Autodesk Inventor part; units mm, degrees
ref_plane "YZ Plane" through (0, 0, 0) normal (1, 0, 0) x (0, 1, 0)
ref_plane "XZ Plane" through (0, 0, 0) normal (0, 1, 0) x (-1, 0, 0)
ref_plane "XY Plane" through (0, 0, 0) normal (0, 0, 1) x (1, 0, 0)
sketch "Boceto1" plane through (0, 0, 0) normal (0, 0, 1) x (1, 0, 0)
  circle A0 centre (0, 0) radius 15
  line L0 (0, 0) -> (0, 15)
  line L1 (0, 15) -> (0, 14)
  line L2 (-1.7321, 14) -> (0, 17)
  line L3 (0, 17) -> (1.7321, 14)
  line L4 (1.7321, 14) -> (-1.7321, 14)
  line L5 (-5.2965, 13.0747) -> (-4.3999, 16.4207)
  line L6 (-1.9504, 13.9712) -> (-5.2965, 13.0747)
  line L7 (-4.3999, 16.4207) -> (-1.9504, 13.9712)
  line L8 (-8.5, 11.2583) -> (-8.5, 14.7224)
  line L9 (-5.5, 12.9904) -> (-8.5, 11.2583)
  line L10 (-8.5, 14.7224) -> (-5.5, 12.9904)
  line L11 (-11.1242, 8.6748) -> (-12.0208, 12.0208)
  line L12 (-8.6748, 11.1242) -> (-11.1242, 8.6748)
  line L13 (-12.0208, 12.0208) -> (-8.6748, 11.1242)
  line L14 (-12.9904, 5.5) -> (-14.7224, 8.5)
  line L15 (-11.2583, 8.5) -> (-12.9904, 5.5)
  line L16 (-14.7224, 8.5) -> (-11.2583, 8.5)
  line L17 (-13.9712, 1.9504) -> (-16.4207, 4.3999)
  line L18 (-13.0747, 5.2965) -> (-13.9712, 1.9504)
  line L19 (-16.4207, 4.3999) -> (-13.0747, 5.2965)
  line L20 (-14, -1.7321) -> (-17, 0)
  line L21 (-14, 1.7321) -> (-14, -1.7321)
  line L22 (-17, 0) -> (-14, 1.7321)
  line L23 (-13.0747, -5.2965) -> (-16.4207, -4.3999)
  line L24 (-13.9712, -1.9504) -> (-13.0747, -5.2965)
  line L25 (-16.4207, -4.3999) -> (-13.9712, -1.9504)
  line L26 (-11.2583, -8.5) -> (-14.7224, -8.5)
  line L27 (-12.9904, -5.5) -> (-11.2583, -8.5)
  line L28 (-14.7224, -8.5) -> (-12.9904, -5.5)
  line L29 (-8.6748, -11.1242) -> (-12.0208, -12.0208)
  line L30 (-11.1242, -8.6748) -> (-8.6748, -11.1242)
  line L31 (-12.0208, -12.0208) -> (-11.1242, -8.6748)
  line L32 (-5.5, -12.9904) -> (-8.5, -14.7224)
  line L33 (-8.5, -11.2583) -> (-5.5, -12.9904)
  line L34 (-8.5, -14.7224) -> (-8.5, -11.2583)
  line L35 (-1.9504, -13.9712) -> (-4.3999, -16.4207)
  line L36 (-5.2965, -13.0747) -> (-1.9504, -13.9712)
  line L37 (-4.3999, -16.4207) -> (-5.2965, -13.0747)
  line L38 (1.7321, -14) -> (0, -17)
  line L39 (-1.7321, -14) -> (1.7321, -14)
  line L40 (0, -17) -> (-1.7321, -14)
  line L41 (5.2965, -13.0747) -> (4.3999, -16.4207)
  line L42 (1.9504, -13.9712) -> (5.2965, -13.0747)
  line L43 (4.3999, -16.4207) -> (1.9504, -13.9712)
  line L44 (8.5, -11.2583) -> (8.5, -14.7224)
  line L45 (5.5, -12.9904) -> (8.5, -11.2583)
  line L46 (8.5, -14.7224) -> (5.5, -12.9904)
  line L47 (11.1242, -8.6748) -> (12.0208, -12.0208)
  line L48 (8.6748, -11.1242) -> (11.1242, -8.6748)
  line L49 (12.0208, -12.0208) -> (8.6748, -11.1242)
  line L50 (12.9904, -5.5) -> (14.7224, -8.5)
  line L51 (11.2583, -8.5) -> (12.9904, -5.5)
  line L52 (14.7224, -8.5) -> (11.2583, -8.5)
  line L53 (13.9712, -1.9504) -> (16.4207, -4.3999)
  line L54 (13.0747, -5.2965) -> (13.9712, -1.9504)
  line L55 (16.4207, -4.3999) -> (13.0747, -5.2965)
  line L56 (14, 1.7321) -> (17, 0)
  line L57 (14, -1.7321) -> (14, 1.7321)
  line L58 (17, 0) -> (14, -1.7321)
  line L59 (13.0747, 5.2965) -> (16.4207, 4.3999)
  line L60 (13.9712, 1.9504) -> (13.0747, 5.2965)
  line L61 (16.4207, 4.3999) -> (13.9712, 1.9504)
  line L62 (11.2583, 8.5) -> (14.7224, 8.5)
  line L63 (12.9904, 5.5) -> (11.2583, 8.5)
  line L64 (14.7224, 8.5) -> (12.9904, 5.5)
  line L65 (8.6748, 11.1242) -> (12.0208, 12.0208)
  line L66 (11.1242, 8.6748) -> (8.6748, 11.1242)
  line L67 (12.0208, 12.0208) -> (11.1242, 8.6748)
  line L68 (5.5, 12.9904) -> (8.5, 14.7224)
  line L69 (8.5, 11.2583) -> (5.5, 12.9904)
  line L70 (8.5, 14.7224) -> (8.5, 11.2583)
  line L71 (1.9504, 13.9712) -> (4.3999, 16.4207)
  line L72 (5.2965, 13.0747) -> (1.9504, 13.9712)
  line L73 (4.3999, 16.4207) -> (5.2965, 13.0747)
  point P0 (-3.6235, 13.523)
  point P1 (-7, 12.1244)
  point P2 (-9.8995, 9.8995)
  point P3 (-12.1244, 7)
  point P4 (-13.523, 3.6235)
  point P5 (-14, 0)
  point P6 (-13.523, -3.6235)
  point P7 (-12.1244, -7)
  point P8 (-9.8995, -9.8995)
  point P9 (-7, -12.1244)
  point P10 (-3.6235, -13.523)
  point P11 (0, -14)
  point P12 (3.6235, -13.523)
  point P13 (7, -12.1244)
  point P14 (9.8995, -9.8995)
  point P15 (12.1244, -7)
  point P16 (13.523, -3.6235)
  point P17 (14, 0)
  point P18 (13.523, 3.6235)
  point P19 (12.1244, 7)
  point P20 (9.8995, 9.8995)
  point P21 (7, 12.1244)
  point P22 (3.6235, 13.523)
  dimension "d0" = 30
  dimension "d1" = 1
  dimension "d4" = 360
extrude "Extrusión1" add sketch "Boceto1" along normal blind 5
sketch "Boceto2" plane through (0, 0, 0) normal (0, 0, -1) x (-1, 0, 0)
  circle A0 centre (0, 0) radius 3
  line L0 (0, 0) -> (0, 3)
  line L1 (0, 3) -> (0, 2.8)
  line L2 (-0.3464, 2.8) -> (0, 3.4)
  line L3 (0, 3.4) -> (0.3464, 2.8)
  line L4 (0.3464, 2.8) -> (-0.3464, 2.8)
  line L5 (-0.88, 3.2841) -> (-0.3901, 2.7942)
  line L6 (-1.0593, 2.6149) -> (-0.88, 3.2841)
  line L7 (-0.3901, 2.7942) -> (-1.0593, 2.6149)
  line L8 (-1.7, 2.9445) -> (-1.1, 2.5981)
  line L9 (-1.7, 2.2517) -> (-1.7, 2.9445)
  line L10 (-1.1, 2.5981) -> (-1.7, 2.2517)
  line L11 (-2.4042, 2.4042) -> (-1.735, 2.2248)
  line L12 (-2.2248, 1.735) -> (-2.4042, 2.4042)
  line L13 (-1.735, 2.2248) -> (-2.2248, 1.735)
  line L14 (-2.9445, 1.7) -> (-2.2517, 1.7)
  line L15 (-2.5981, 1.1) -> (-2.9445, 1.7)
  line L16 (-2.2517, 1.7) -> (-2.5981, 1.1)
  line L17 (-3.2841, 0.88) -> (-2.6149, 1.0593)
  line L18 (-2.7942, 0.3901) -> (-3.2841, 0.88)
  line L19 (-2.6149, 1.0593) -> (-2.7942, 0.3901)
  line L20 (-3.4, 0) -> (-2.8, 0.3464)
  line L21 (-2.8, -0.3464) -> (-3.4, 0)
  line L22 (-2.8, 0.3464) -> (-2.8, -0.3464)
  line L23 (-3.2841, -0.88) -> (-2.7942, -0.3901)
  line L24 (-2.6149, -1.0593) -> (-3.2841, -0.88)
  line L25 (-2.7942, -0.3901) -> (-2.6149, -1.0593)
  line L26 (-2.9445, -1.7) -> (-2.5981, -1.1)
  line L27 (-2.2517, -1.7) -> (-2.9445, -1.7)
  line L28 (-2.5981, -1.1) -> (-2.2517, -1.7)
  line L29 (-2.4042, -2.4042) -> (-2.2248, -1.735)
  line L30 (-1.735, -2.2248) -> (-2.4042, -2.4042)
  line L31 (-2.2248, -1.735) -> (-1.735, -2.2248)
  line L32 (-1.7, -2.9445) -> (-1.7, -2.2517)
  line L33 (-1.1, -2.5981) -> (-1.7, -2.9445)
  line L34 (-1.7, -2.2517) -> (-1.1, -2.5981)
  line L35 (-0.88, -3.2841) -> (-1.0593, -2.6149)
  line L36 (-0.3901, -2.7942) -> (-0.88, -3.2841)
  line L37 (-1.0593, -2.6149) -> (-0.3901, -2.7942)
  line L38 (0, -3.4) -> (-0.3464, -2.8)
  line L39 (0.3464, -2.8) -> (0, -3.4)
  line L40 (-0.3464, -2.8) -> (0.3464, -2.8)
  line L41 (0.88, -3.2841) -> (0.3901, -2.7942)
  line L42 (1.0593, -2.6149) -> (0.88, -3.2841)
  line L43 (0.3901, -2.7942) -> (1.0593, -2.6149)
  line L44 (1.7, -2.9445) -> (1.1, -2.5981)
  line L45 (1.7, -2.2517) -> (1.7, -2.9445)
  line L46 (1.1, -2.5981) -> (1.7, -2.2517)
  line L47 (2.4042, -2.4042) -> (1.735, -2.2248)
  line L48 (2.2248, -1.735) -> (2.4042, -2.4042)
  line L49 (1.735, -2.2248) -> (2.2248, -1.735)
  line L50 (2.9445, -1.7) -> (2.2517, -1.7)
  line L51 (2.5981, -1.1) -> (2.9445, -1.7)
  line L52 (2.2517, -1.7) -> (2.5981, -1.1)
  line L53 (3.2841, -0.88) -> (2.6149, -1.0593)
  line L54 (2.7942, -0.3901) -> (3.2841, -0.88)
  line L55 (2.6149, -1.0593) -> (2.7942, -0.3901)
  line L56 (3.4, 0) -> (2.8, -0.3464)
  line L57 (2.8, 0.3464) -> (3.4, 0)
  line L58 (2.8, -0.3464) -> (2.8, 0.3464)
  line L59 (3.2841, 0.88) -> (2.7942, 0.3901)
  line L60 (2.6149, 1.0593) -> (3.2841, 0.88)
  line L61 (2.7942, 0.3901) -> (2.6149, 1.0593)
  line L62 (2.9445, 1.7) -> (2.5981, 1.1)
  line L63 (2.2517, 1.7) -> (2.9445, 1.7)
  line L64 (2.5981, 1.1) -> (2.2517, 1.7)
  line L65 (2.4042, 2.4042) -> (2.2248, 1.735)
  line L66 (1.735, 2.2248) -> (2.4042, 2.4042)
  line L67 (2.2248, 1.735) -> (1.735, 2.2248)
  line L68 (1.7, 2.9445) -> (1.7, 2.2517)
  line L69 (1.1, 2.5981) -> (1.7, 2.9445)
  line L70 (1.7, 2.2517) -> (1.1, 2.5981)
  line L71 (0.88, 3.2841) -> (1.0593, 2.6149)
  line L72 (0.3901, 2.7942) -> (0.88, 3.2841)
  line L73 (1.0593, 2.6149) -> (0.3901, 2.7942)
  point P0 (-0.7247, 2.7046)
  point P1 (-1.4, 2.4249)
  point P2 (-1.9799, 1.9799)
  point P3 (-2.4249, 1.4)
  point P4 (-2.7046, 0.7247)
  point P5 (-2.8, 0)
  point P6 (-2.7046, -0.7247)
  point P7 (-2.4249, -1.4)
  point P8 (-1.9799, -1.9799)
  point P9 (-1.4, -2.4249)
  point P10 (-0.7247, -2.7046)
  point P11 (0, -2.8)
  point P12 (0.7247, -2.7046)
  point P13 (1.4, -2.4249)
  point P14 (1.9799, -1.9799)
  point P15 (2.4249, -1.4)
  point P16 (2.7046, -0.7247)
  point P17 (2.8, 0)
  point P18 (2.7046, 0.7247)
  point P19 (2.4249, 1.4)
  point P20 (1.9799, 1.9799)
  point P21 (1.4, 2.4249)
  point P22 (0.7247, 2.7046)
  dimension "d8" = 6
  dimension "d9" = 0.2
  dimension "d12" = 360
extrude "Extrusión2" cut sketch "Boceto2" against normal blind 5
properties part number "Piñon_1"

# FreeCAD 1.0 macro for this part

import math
import FreeCAD as App
import Part
import Sketcher

V = App.Vector
Q = App.Units.Quantity

doc = App.newDocument("Part")
params = doc.addObject("Spreadsheet::Sheet", "Params")
for row, (alias, value) in enumerate([
    ("sketch1_radius", "15 mm"),
    ("pad1_length", "5 mm"),
    ("sketch2_radius", "3 mm"),
    ("pocket1_length", "5 mm"),
], start=1):
    params.set(f"A{row}", alias)
    params.set(f"B{row}", "=" + value)
    params.setAlias(f"B{row}", alias)

body = doc.addObject("PartDesign::Body", "Body")

sketch1 = body.newObject("Sketcher::SketchObject", "Sketch")
sketch1.AttachmentSupport = (doc.getObject("XY_Plane"), [""])
sketch1.MapMode = "FlatFace"
sketch1.addGeometry([
    Part.LineSegment(V(15, -1.2, 0), V(17, 0, 0)),
    Part.LineSegment(V(17, 0, 0), V(15, 1.2, 0)),
    Part.ArcOfCircle(Part.Circle(V(0, 0, 0), V(0, 0, 1), 15), math.radians(4.52), math.radians(10.48)),
    Part.LineSegment(V(14.7, 2.7, 0), V(16.4, 4.4, 0)),
    Part.LineSegment(V(16.4, 4.4, 0), V(14.1, 5, 0)),
    Part.ArcOfCircle(Part.Circle(V(0, 0, 0), V(0, 0, 1), 15), math.radians(19.52), math.radians(25.48)),
    Part.LineSegment(V(13.5, 6.5, 0), V(14.7, 8.5, 0)),
    Part.LineSegment(V(14.7, 8.5, 0), V(12.4, 8.5, 0)),
    Part.ArcOfCircle(Part.Circle(V(0, 0, 0), V(0, 0, 1), 15), math.radians(34.52), math.radians(40.48)),
    Part.LineSegment(V(11.4, 9.7, 0), V(12, 12, 0)),
    Part.LineSegment(V(12, 12, 0), V(9.7, 11.4, 0)),
    Part.ArcOfCircle(Part.Circle(V(0, 0, 0), V(0, 0, 1), 15), math.radians(49.52), math.radians(55.48)),
    Part.LineSegment(V(8.5, 12.4, 0), V(8.5, 14.7, 0)),
    Part.LineSegment(V(8.5, 14.7, 0), V(6.5, 13.5, 0)),
    Part.ArcOfCircle(Part.Circle(V(0, 0, 0), V(0, 0, 1), 15), math.radians(64.52), math.radians(70.48)),
    Part.LineSegment(V(5, 14.1, 0), V(4.4, 16.4, 0)),
    Part.LineSegment(V(4.4, 16.4, 0), V(2.7, 14.7, 0)),
    Part.ArcOfCircle(Part.Circle(V(0, 0, 0), V(0, 0, 1), 15), math.radians(79.52), math.radians(85.48)),
    Part.LineSegment(V(1.2, 15, 0), V(0, 17, 0)),
    Part.LineSegment(V(0, 17, 0), V(-1.2, 15, 0)),
    Part.ArcOfCircle(Part.Circle(V(0, 0, 0), V(0, 0, 1), 15), math.radians(94.52), math.radians(100.48)),
    Part.LineSegment(V(-2.7, 14.7, 0), V(-4.4, 16.4, 0)),
    Part.LineSegment(V(-4.4, 16.4, 0), V(-5, 14.1, 0)),
    Part.ArcOfCircle(Part.Circle(V(0, 0, 0), V(0, 0, 1), 15), math.radians(109.52), math.radians(115.48)),
    Part.LineSegment(V(-6.5, 13.5, 0), V(-8.5, 14.7, 0)),
    Part.LineSegment(V(-8.5, 14.7, 0), V(-8.5, 12.4, 0)),
    Part.ArcOfCircle(Part.Circle(V(0, 0, 0), V(0, 0, 1), 15), math.radians(124.52), math.radians(130.48)),
    Part.LineSegment(V(-9.7, 11.4, 0), V(-12, 12, 0)),
    Part.LineSegment(V(-12, 12, 0), V(-11.4, 9.7, 0)),
    Part.ArcOfCircle(Part.Circle(V(0, 0, 0), V(0, 0, 1), 15), math.radians(139.52), math.radians(145.48)),
    Part.LineSegment(V(-12.4, 8.5, 0), V(-14.7, 8.5, 0)),
    Part.LineSegment(V(-14.7, 8.5, 0), V(-13.5, 6.5, 0)),
    Part.ArcOfCircle(Part.Circle(V(0, 0, 0), V(0, 0, 1), 15), math.radians(154.52), math.radians(160.48)),
    Part.LineSegment(V(-14.1, 5, 0), V(-16.4, 4.4, 0)),
    Part.LineSegment(V(-16.4, 4.4, 0), V(-14.7, 2.7, 0)),
    Part.ArcOfCircle(Part.Circle(V(0, 0, 0), V(0, 0, 1), 15), math.radians(169.52), math.radians(175.48)),
    Part.LineSegment(V(-15, 1.2, 0), V(-17, 0, 0)),
    Part.LineSegment(V(-17, 0, 0), V(-15, -1.2, 0)),
    Part.ArcOfCircle(Part.Circle(V(0, 0, 0), V(0, 0, 1), 15), math.radians(-175.48), math.radians(-169.52)),
    Part.LineSegment(V(-14.7, -2.7, 0), V(-16.4, -4.4, 0)),
    Part.LineSegment(V(-16.4, -4.4, 0), V(-14.1, -5, 0)),
    Part.ArcOfCircle(Part.Circle(V(0, 0, 0), V(0, 0, 1), 15), math.radians(-160.48), math.radians(-154.52)),
    Part.LineSegment(V(-13.5, -6.5, 0), V(-14.7, -8.5, 0)),
    Part.LineSegment(V(-14.7, -8.5, 0), V(-12.4, -8.5, 0)),
    Part.ArcOfCircle(Part.Circle(V(0, 0, 0), V(0, 0, 1), 15), math.radians(-145.48), math.radians(-139.52)),
    Part.LineSegment(V(-11.4, -9.7, 0), V(-12, -12, 0)),
    Part.LineSegment(V(-12, -12, 0), V(-9.7, -11.4, 0)),
    Part.ArcOfCircle(Part.Circle(V(0, 0, 0), V(0, 0, 1), 15), math.radians(-130.48), math.radians(-124.52)),
    Part.LineSegment(V(-8.5, -12.4, 0), V(-8.5, -14.7, 0)),
    Part.LineSegment(V(-8.5, -14.7, 0), V(-6.5, -13.5, 0)),
    Part.ArcOfCircle(Part.Circle(V(0, 0, 0), V(0, 0, 1), 15), math.radians(-115.48), math.radians(-109.52)),
    Part.LineSegment(V(-5, -14.1, 0), V(-4.4, -16.4, 0)),
    Part.LineSegment(V(-4.4, -16.4, 0), V(-2.7, -14.7, 0)),
    Part.ArcOfCircle(Part.Circle(V(0, 0, 0), V(0, 0, 1), 15), math.radians(-100.48), math.radians(-94.52)),
    Part.LineSegment(V(-1.2, -15, 0), V(0, -17, 0)),
    Part.LineSegment(V(0, -17, 0), V(1.2, -15, 0)),
    Part.ArcOfCircle(Part.Circle(V(0, 0, 0), V(0, 0, 1), 15), math.radians(-85.48), math.radians(-79.52)),
    Part.LineSegment(V(2.7, -14.7, 0), V(4.4, -16.4, 0)),
    Part.LineSegment(V(4.4, -16.4, 0), V(5, -14.1, 0)),
    Part.ArcOfCircle(Part.Circle(V(0, 0, 0), V(0, 0, 1), 15), math.radians(-70.48), math.radians(-64.52)),
    Part.LineSegment(V(6.5, -13.5, 0), V(8.5, -14.7, 0)),
    Part.LineSegment(V(8.5, -14.7, 0), V(8.5, -12.4, 0)),
    Part.ArcOfCircle(Part.Circle(V(0, 0, 0), V(0, 0, 1), 15), math.radians(-55.48), math.radians(-49.52)),
    Part.LineSegment(V(9.7, -11.4, 0), V(12, -12, 0)),
    Part.LineSegment(V(12, -12, 0), V(11.4, -9.7, 0)),
    Part.ArcOfCircle(Part.Circle(V(0, 0, 0), V(0, 0, 1), 15), math.radians(-40.48), math.radians(-34.52)),
    Part.LineSegment(V(12.4, -8.5, 0), V(14.7, -8.5, 0)),
    Part.LineSegment(V(14.7, -8.5, 0), V(13.5, -6.5, 0)),
    Part.ArcOfCircle(Part.Circle(V(0, 0, 0), V(0, 0, 1), 15), math.radians(-25.48), math.radians(-19.52)),
    Part.LineSegment(V(14.1, -5, 0), V(16.4, -4.4, 0)),
    Part.LineSegment(V(16.4, -4.4, 0), V(14.7, -2.7, 0)),
    Part.ArcOfCircle(Part.Circle(V(0, 0, 0), V(0, 0, 1), 15), math.radians(-10.48), math.radians(-4.52)),
], False)
sketch1.addConstraint([
    Sketcher.Constraint("Coincident", 0, 2, 1, 1),
    Sketcher.Constraint("Coincident", 1, 2, 2, 1),
    Sketcher.Constraint("Coincident", 2, 2, 3, 1),
    Sketcher.Constraint("Coincident", 3, 2, 4, 1),
    Sketcher.Constraint("Coincident", 4, 2, 5, 1),
    Sketcher.Constraint("Coincident", 5, 2, 6, 1),
    Sketcher.Constraint("Coincident", 6, 2, 7, 1),
    Sketcher.Constraint("Coincident", 7, 2, 8, 1),
    Sketcher.Constraint("Coincident", 8, 2, 9, 1),
    Sketcher.Constraint("Coincident", 9, 2, 10, 1),
    Sketcher.Constraint("Coincident", 10, 2, 11, 1),
    Sketcher.Constraint("Coincident", 11, 2, 12, 1),
    Sketcher.Constraint("Coincident", 12, 2, 13, 1),
    Sketcher.Constraint("Coincident", 13, 2, 14, 1),
    Sketcher.Constraint("Coincident", 14, 2, 15, 1),
    Sketcher.Constraint("Coincident", 15, 2, 16, 1),
    Sketcher.Constraint("Coincident", 16, 2, 17, 1),
    Sketcher.Constraint("Coincident", 17, 2, 18, 1),
    Sketcher.Constraint("Coincident", 18, 2, 19, 1),
    Sketcher.Constraint("Coincident", 19, 2, 20, 1),
    Sketcher.Constraint("Coincident", 20, 2, 21, 1),
    Sketcher.Constraint("Coincident", 21, 2, 22, 1),
    Sketcher.Constraint("Coincident", 22, 2, 23, 1),
    Sketcher.Constraint("Coincident", 23, 2, 24, 1),
    Sketcher.Constraint("Coincident", 24, 2, 25, 1),
    Sketcher.Constraint("Coincident", 25, 2, 26, 1),
    Sketcher.Constraint("Coincident", 26, 2, 27, 1),
    Sketcher.Constraint("Coincident", 27, 2, 28, 1),
    Sketcher.Constraint("Coincident", 28, 2, 29, 1),
    Sketcher.Constraint("Coincident", 29, 2, 30, 1),
    Sketcher.Constraint("Coincident", 30, 2, 31, 1),
    Sketcher.Constraint("Coincident", 31, 2, 32, 1),
    Sketcher.Constraint("Coincident", 32, 2, 33, 1),
    Sketcher.Constraint("Coincident", 33, 2, 34, 1),
    Sketcher.Constraint("Coincident", 34, 2, 35, 1),
    Sketcher.Constraint("Coincident", 35, 2, 36, 1),
    Sketcher.Constraint("Coincident", 36, 2, 37, 1),
    Sketcher.Constraint("Coincident", 37, 2, 38, 1),
    Sketcher.Constraint("Coincident", 38, 2, 39, 1),
    Sketcher.Constraint("Coincident", 39, 2, 40, 1),
    Sketcher.Constraint("Coincident", 40, 2, 41, 1),
    Sketcher.Constraint("Coincident", 41, 2, 42, 1),
    Sketcher.Constraint("Coincident", 42, 2, 43, 1),
    Sketcher.Constraint("Coincident", 43, 2, 44, 1),
    Sketcher.Constraint("Coincident", 44, 2, 45, 1),
    Sketcher.Constraint("Coincident", 45, 2, 46, 1),
    Sketcher.Constraint("Coincident", 46, 2, 47, 1),
    Sketcher.Constraint("Coincident", 47, 2, 48, 1),
    Sketcher.Constraint("Coincident", 48, 2, 49, 1),
    Sketcher.Constraint("Coincident", 49, 2, 50, 1),
    Sketcher.Constraint("Coincident", 50, 2, 51, 1),
    Sketcher.Constraint("Coincident", 51, 2, 52, 1),
    Sketcher.Constraint("Coincident", 52, 2, 53, 1),
    Sketcher.Constraint("Coincident", 53, 2, 54, 1),
    Sketcher.Constraint("Coincident", 54, 2, 55, 1),
    Sketcher.Constraint("Coincident", 55, 2, 56, 1),
    Sketcher.Constraint("Coincident", 56, 2, 57, 1),
    Sketcher.Constraint("Coincident", 57, 2, 58, 1),
    Sketcher.Constraint("Coincident", 58, 2, 59, 1),
    Sketcher.Constraint("Coincident", 59, 2, 60, 1),
    Sketcher.Constraint("Coincident", 60, 2, 61, 1),
    Sketcher.Constraint("Coincident", 61, 2, 62, 1),
    Sketcher.Constraint("Coincident", 62, 2, 63, 1),
    Sketcher.Constraint("Coincident", 63, 2, 64, 1),
    Sketcher.Constraint("Coincident", 64, 2, 65, 1),
    Sketcher.Constraint("Coincident", 65, 2, 66, 1),
    Sketcher.Constraint("Coincident", 66, 2, 67, 1),
    Sketcher.Constraint("Coincident", 67, 2, 68, 1),
    Sketcher.Constraint("Coincident", 68, 2, 69, 1),
    Sketcher.Constraint("Coincident", 69, 2, 70, 1),
    Sketcher.Constraint("Coincident", 70, 2, 71, 1),
    Sketcher.Constraint("Coincident", 71, 2, 0, 1),
    Sketcher.Constraint("Horizontal", 7),
    Sketcher.Constraint("Vertical", 12),
    Sketcher.Constraint("Vertical", 25),
    Sketcher.Constraint("Horizontal", 30),
    Sketcher.Constraint("Horizontal", 43),
    Sketcher.Constraint("Vertical", 48),
    Sketcher.Constraint("Vertical", 61),
    Sketcher.Constraint("Horizontal", 66),
    Sketcher.Constraint("Coincident", 2, 3, -1, 1),
    Sketcher.Constraint("Coincident", 5, 3, -1, 1),
    Sketcher.Constraint("Coincident", 8, 3, -1, 1),
    Sketcher.Constraint("Coincident", 11, 3, -1, 1),
    Sketcher.Constraint("Coincident", 14, 3, -1, 1),
    Sketcher.Constraint("Coincident", 17, 3, -1, 1),
    Sketcher.Constraint("Coincident", 20, 3, -1, 1),
    Sketcher.Constraint("Coincident", 23, 3, -1, 1),
    Sketcher.Constraint("Coincident", 26, 3, -1, 1),
    Sketcher.Constraint("Coincident", 29, 3, -1, 1),
    Sketcher.Constraint("Coincident", 32, 3, -1, 1),
    Sketcher.Constraint("Coincident", 35, 3, -1, 1),
    Sketcher.Constraint("Coincident", 38, 3, -1, 1),
    Sketcher.Constraint("Coincident", 41, 3, -1, 1),
    Sketcher.Constraint("Coincident", 44, 3, -1, 1),
    Sketcher.Constraint("Coincident", 47, 3, -1, 1),
    Sketcher.Constraint("Coincident", 50, 3, -1, 1),
    Sketcher.Constraint("Coincident", 53, 3, -1, 1),
    Sketcher.Constraint("Coincident", 56, 3, -1, 1),
    Sketcher.Constraint("Coincident", 59, 3, -1, 1),
    Sketcher.Constraint("Coincident", 62, 3, -1, 1),
    Sketcher.Constraint("Coincident", 65, 3, -1, 1),
    Sketcher.Constraint("Coincident", 68, 3, -1, 1),
    Sketcher.Constraint("Coincident", 71, 3, -1, 1),
    Sketcher.Constraint("Equal", 2, 5),
    Sketcher.Constraint("Equal", 5, 8),
    Sketcher.Constraint("Equal", 8, 11),
    Sketcher.Constraint("Equal", 11, 14),
    Sketcher.Constraint("Equal", 14, 17),
    Sketcher.Constraint("Equal", 17, 20),
    Sketcher.Constraint("Equal", 20, 23),
    Sketcher.Constraint("Equal", 23, 26),
    Sketcher.Constraint("Equal", 26, 29),
    Sketcher.Constraint("Equal", 29, 32),
    Sketcher.Constraint("Equal", 32, 35),
    Sketcher.Constraint("Equal", 35, 38),
    Sketcher.Constraint("Equal", 38, 41),
    Sketcher.Constraint("Equal", 41, 44),
    Sketcher.Constraint("Equal", 44, 47),
    Sketcher.Constraint("Equal", 47, 50),
    Sketcher.Constraint("Equal", 50, 53),
    Sketcher.Constraint("Equal", 53, 56),
    Sketcher.Constraint("Equal", 56, 59),
    Sketcher.Constraint("Equal", 59, 62),
    Sketcher.Constraint("Equal", 62, 65),
    Sketcher.Constraint("Equal", 65, 68),
    Sketcher.Constraint("Equal", 68, 71),
    Sketcher.Constraint("Symmetric", 0, 2, 36, 2, -1, 1),
    Sketcher.Constraint("Symmetric", 3, 2, 39, 2, -1, 1),
    Sketcher.Constraint("Symmetric", 6, 2, 42, 2, -1, 1),
    Sketcher.Constraint("Symmetric", 9, 2, 45, 2, -1, 1),
    Sketcher.Constraint("Symmetric", 12, 2, 48, 2, -1, 1),
    Sketcher.Constraint("Symmetric", 15, 2, 51, 2, -1, 1),
    Sketcher.Constraint("Symmetric", 18, 2, 54, 2, -1, 1),
    Sketcher.Constraint("Symmetric", 21, 2, 57, 2, -1, 1),
    Sketcher.Constraint("Symmetric", 24, 2, 60, 2, -1, 1),
    Sketcher.Constraint("Symmetric", 27, 2, 63, 2, -1, 1),
    Sketcher.Constraint("Symmetric", 30, 2, 66, 2, -1, 1),
    Sketcher.Constraint("Symmetric", 33, 2, 69, 2, -1, 1),
    Sketcher.Constraint("Symmetric", 15, 2, 21, 2, -2),
    Sketcher.Constraint("Symmetric", 12, 2, 24, 2, -2),
    Sketcher.Constraint("Symmetric", 9, 2, 27, 2, -2),
    Sketcher.Constraint("Symmetric", 6, 2, 30, 2, -2),
    Sketcher.Constraint("Symmetric", 3, 2, 33, 2, -2),
    Sketcher.Constraint("PointOnObject", 0, 2, -1),
    Sketcher.Constraint("PointOnObject", 18, 2, -2),
    Sketcher.Constraint("Perpendicular", 1, 6),
    Sketcher.Constraint("Perpendicular", 4, 9),
    Sketcher.Constraint("Parallel", 0, 13),
    Sketcher.Constraint("Perpendicular", 10, 15),
    Sketcher.Constraint("Parallel", 3, 16),
    Sketcher.Constraint("Perpendicular", 13, 18),
    Sketcher.Constraint("Parallel", 6, 19),
    Sketcher.Constraint("Perpendicular", 16, 21),
    Sketcher.Constraint("Parallel", 9, 22),
    Sketcher.Constraint("Perpendicular", 19, 24),
    Sketcher.Constraint("Perpendicular", 22, 27),
    Sketcher.Constraint("Parallel", 15, 28),
    Sketcher.Constraint("Parallel", 18, 31),
    Sketcher.Constraint("Perpendicular", 28, 33),
    Sketcher.Constraint("Parallel", 21, 34),
    Sketcher.Constraint("Perpendicular", 31, 36),
    Sketcher.Constraint("Parallel", 24, 37),
    Sketcher.Constraint("Perpendicular", 34, 39),
    Sketcher.Constraint("Parallel", 27, 40),
    Sketcher.Constraint("Perpendicular", 37, 42),
    Sketcher.Constraint("Perpendicular", 40, 45),
    Sketcher.Constraint("Parallel", 33, 46),
    Sketcher.Constraint("Parallel", 36, 49),
    Sketcher.Constraint("Perpendicular", 46, 51),
    Sketcher.Constraint("Parallel", 39, 52),
    Sketcher.Constraint("Perpendicular", 49, 54),
    Sketcher.Constraint("Parallel", 42, 55),
    Sketcher.Constraint("Perpendicular", 52, 57),
    Sketcher.Constraint("Parallel", 45, 58),
    Sketcher.Constraint("Perpendicular", 55, 60),
    Sketcher.Constraint("Perpendicular", 58, 63),
    Sketcher.Constraint("Parallel", 51, 64),
    Sketcher.Constraint("Parallel", 54, 67),
    Sketcher.Constraint("Perpendicular", 64, 69),
    Sketcher.Constraint("Parallel", 57, 70),
    Sketcher.Constraint("Horizontal", 17, 2, 19, 2),
    Sketcher.Constraint("Horizontal", 16, 2, 20, 2),
    Sketcher.Constraint("Horizontal", 14, 2, 22, 2),
    Sketcher.Constraint("Equal", 66, 12),
    Sketcher.Constraint("Equal", 1, 3),
    Sketcher.Constraint("Equal", 3, 4),
    Sketcher.Constraint("Equal", 4, 6),
    Sketcher.Constraint("Equal", 6, 9),
    Sketcher.Constraint("Equal", 9, 10),
    Sketcher.Constraint("Equal", 10, 13),
    Sketcher.Constraint("Equal", 13, 15),
    Sketcher.Constraint("Equal", 15, 16),
    Sketcher.Constraint("Equal", 16, 18),
    Sketcher.Constraint("Radius", 2, 15.0),
    Sketcher.Constraint("Angle", 0, Q("30.0007 deg")),
    Sketcher.Constraint("Angle", 4, Q("164.9993 deg")),
    Sketcher.Constraint("DistanceX", -1, 1, 0, 2, 17.0),
    Sketcher.Constraint("DistanceY", -1, 1, 6, 2, 8.5),
])
sketch1.setExpression("Constraints[194]", "Params.sketch1_radius")
pad1 = body.newObject("PartDesign::Pad", "Pad")
pad1.Profile = sketch1
pad1.setExpression("Length", "Params.pad1_length")

sketch2 = body.newObject("Sketcher::SketchObject", "Sketch001")
sketch2.AttachmentSupport = (doc.getObject("XY_Plane"), [""])
sketch2.MapMode = "FlatFace"
sketch2.addGeometry([
    Part.LineSegment(V(-2.99, -0.24, 0), V(-3.4, 0, 0)),
    Part.LineSegment(V(-3.4, 0, 0), V(-2.99, 0.24, 0)),
    Part.ArcOfCircle(Part.Circle(V(0, 0, 0), V(0, 0, 1), 3), math.radians(169.52), math.radians(175.48)),
    Part.LineSegment(V(-2.95, 0.55, 0), V(-3.28, 0.88, 0)),
    Part.LineSegment(V(-3.28, 0.88, 0), V(-2.83, 1, 0)),
    Part.ArcOfCircle(Part.Circle(V(0, 0, 0), V(0, 0, 1), 3), math.radians(154.52), math.radians(160.48)),
    Part.LineSegment(V(-2.71, 1.29, 0), V(-2.94, 1.7, 0)),
    Part.LineSegment(V(-2.94, 1.7, 0), V(-2.47, 1.7, 0)),
    Part.ArcOfCircle(Part.Circle(V(0, 0, 0), V(0, 0, 1), 3), math.radians(139.52), math.radians(145.48)),
    Part.LineSegment(V(-2.28, 1.95, 0), V(-2.4, 2.4, 0)),
    Part.LineSegment(V(-2.4, 2.4, 0), V(-1.95, 2.28, 0)),
    Part.ArcOfCircle(Part.Circle(V(0, 0, 0), V(0, 0, 1), 3), math.radians(124.52), math.radians(130.48)),
    Part.LineSegment(V(-1.7, 2.47, 0), V(-1.7, 2.94, 0)),
    Part.LineSegment(V(-1.7, 2.94, 0), V(-1.29, 2.71, 0)),
    Part.ArcOfCircle(Part.Circle(V(0, 0, 0), V(0, 0, 1), 3), math.radians(109.52), math.radians(115.48)),
    Part.LineSegment(V(-1, 2.83, 0), V(-0.88, 3.28, 0)),
    Part.LineSegment(V(-0.88, 3.28, 0), V(-0.55, 2.95, 0)),
    Part.ArcOfCircle(Part.Circle(V(0, 0, 0), V(0, 0, 1), 3), math.radians(94.52), math.radians(100.48)),
    Part.LineSegment(V(-0.24, 2.99, 0), V(0, 3.4, 0)),
    Part.LineSegment(V(0, 3.4, 0), V(0.24, 2.99, 0)),
    Part.ArcOfCircle(Part.Circle(V(0, 0, 0), V(0, 0, 1), 3), math.radians(79.52), math.radians(85.48)),
    Part.LineSegment(V(0.55, 2.95, 0), V(0.88, 3.28, 0)),
    Part.LineSegment(V(0.88, 3.28, 0), V(1, 2.83, 0)),
    Part.ArcOfCircle(Part.Circle(V(0, 0, 0), V(0, 0, 1), 3), math.radians(64.52), math.radians(70.48)),
    Part.LineSegment(V(1.29, 2.71, 0), V(1.7, 2.94, 0)),
    Part.LineSegment(V(1.7, 2.94, 0), V(1.7, 2.47, 0)),
    Part.ArcOfCircle(Part.Circle(V(0, 0, 0), V(0, 0, 1), 3), math.radians(49.52), math.radians(55.48)),
    Part.LineSegment(V(1.95, 2.28, 0), V(2.4, 2.4, 0)),
    Part.LineSegment(V(2.4, 2.4, 0), V(2.28, 1.95, 0)),
    Part.ArcOfCircle(Part.Circle(V(0, 0, 0), V(0, 0, 1), 3), math.radians(34.52), math.radians(40.48)),
    Part.LineSegment(V(2.47, 1.7, 0), V(2.94, 1.7, 0)),
    Part.LineSegment(V(2.94, 1.7, 0), V(2.71, 1.29, 0)),
    Part.ArcOfCircle(Part.Circle(V(0, 0, 0), V(0, 0, 1), 3), math.radians(19.52), math.radians(25.48)),
    Part.LineSegment(V(2.83, 1, 0), V(3.28, 0.88, 0)),
    Part.LineSegment(V(3.28, 0.88, 0), V(2.95, 0.55, 0)),
    Part.ArcOfCircle(Part.Circle(V(0, 0, 0), V(0, 0, 1), 3), math.radians(4.52), math.radians(10.48)),
    Part.LineSegment(V(2.99, 0.24, 0), V(3.4, 0, 0)),
    Part.LineSegment(V(3.4, 0, 0), V(2.99, -0.24, 0)),
    Part.ArcOfCircle(Part.Circle(V(0, 0, 0), V(0, 0, 1), 3), math.radians(-10.48), math.radians(-4.52)),
    Part.LineSegment(V(2.95, -0.55, 0), V(3.28, -0.88, 0)),
    Part.LineSegment(V(3.28, -0.88, 0), V(2.83, -1, 0)),
    Part.ArcOfCircle(Part.Circle(V(0, 0, 0), V(0, 0, 1), 3), math.radians(-25.48), math.radians(-19.52)),
    Part.LineSegment(V(2.71, -1.29, 0), V(2.94, -1.7, 0)),
    Part.LineSegment(V(2.94, -1.7, 0), V(2.47, -1.7, 0)),
    Part.ArcOfCircle(Part.Circle(V(0, 0, 0), V(0, 0, 1), 3), math.radians(-40.48), math.radians(-34.52)),
    Part.LineSegment(V(2.28, -1.95, 0), V(2.4, -2.4, 0)),
    Part.LineSegment(V(2.4, -2.4, 0), V(1.95, -2.28, 0)),
    Part.ArcOfCircle(Part.Circle(V(0, 0, 0), V(0, 0, 1), 3), math.radians(-55.48), math.radians(-49.52)),
    Part.LineSegment(V(1.7, -2.47, 0), V(1.7, -2.94, 0)),
    Part.LineSegment(V(1.7, -2.94, 0), V(1.29, -2.71, 0)),
    Part.ArcOfCircle(Part.Circle(V(0, 0, 0), V(0, 0, 1), 3), math.radians(-70.48), math.radians(-64.52)),
    Part.LineSegment(V(1, -2.83, 0), V(0.88, -3.28, 0)),
    Part.LineSegment(V(0.88, -3.28, 0), V(0.55, -2.95, 0)),
    Part.ArcOfCircle(Part.Circle(V(0, 0, 0), V(0, 0, 1), 3), math.radians(-85.48), math.radians(-79.52)),
    Part.LineSegment(V(0.24, -2.99, 0), V(0, -3.4, 0)),
    Part.LineSegment(V(0, -3.4, 0), V(-0.24, -2.99, 0)),
    Part.ArcOfCircle(Part.Circle(V(0, 0, 0), V(0, 0, 1), 3), math.radians(-100.48), math.radians(-94.52)),
    Part.LineSegment(V(-0.55, -2.95, 0), V(-0.88, -3.28, 0)),
    Part.LineSegment(V(-0.88, -3.28, 0), V(-1, -2.83, 0)),
    Part.ArcOfCircle(Part.Circle(V(0, 0, 0), V(0, 0, 1), 3), math.radians(-115.48), math.radians(-109.52)),
    Part.LineSegment(V(-1.29, -2.71, 0), V(-1.7, -2.94, 0)),
    Part.LineSegment(V(-1.7, -2.94, 0), V(-1.7, -2.47, 0)),
    Part.ArcOfCircle(Part.Circle(V(0, 0, 0), V(0, 0, 1), 3), math.radians(-130.48), math.radians(-124.52)),
    Part.LineSegment(V(-1.95, -2.28, 0), V(-2.4, -2.4, 0)),
    Part.LineSegment(V(-2.4, -2.4, 0), V(-2.28, -1.95, 0)),
    Part.ArcOfCircle(Part.Circle(V(0, 0, 0), V(0, 0, 1), 3), math.radians(-145.48), math.radians(-139.52)),
    Part.LineSegment(V(-2.47, -1.7, 0), V(-2.94, -1.7, 0)),
    Part.LineSegment(V(-2.94, -1.7, 0), V(-2.71, -1.29, 0)),
    Part.ArcOfCircle(Part.Circle(V(0, 0, 0), V(0, 0, 1), 3), math.radians(-160.48), math.radians(-154.52)),
    Part.LineSegment(V(-2.83, -1, 0), V(-3.28, -0.88, 0)),
    Part.LineSegment(V(-3.28, -0.88, 0), V(-2.95, -0.55, 0)),
    Part.ArcOfCircle(Part.Circle(V(0, 0, 0), V(0, 0, 1), 3), math.radians(-175.48), math.radians(-169.52)),
], False)
sketch2.addConstraint([
    Sketcher.Constraint("Coincident", 0, 2, 1, 1),
    Sketcher.Constraint("Coincident", 1, 2, 2, 2),
    Sketcher.Constraint("Coincident", 2, 1, 3, 1),
    Sketcher.Constraint("Coincident", 3, 2, 4, 1),
    Sketcher.Constraint("Coincident", 4, 2, 5, 2),
    Sketcher.Constraint("Coincident", 5, 1, 6, 1),
    Sketcher.Constraint("Coincident", 6, 2, 7, 1),
    Sketcher.Constraint("Coincident", 7, 2, 8, 2),
    Sketcher.Constraint("Coincident", 8, 1, 9, 1),
    Sketcher.Constraint("Coincident", 9, 2, 10, 1),
    Sketcher.Constraint("Coincident", 10, 2, 11, 2),
    Sketcher.Constraint("Coincident", 11, 1, 12, 1),
    Sketcher.Constraint("Coincident", 12, 2, 13, 1),
    Sketcher.Constraint("Coincident", 13, 2, 14, 2),
    Sketcher.Constraint("Coincident", 14, 1, 15, 1),
    Sketcher.Constraint("Coincident", 15, 2, 16, 1),
    Sketcher.Constraint("Coincident", 16, 2, 17, 2),
    Sketcher.Constraint("Coincident", 17, 1, 18, 1),
    Sketcher.Constraint("Coincident", 18, 2, 19, 1),
    Sketcher.Constraint("Coincident", 19, 2, 20, 2),
    Sketcher.Constraint("Coincident", 20, 1, 21, 1),
    Sketcher.Constraint("Coincident", 21, 2, 22, 1),
    Sketcher.Constraint("Coincident", 22, 2, 23, 2),
    Sketcher.Constraint("Coincident", 23, 1, 24, 1),
    Sketcher.Constraint("Coincident", 24, 2, 25, 1),
    Sketcher.Constraint("Coincident", 25, 2, 26, 2),
    Sketcher.Constraint("Coincident", 26, 1, 27, 1),
    Sketcher.Constraint("Coincident", 27, 2, 28, 1),
    Sketcher.Constraint("Coincident", 28, 2, 29, 2),
    Sketcher.Constraint("Coincident", 29, 1, 30, 1),
    Sketcher.Constraint("Coincident", 30, 2, 31, 1),
    Sketcher.Constraint("Coincident", 31, 2, 32, 2),
    Sketcher.Constraint("Coincident", 32, 1, 33, 1),
    Sketcher.Constraint("Coincident", 33, 2, 34, 1),
    Sketcher.Constraint("Coincident", 34, 2, 35, 2),
    Sketcher.Constraint("Coincident", 35, 1, 36, 1),
    Sketcher.Constraint("Coincident", 36, 2, 37, 1),
    Sketcher.Constraint("Coincident", 37, 2, 38, 2),
    Sketcher.Constraint("Coincident", 38, 1, 39, 1),
    Sketcher.Constraint("Coincident", 39, 2, 40, 1),
    Sketcher.Constraint("Coincident", 40, 2, 41, 2),
    Sketcher.Constraint("Coincident", 41, 1, 42, 1),
    Sketcher.Constraint("Coincident", 42, 2, 43, 1),
    Sketcher.Constraint("Coincident", 43, 2, 44, 2),
    Sketcher.Constraint("Coincident", 44, 1, 45, 1),
    Sketcher.Constraint("Coincident", 45, 2, 46, 1),
    Sketcher.Constraint("Coincident", 46, 2, 47, 2),
    Sketcher.Constraint("Coincident", 47, 1, 48, 1),
    Sketcher.Constraint("Coincident", 48, 2, 49, 1),
    Sketcher.Constraint("Coincident", 49, 2, 50, 2),
    Sketcher.Constraint("Coincident", 50, 1, 51, 1),
    Sketcher.Constraint("Coincident", 51, 2, 52, 1),
    Sketcher.Constraint("Coincident", 52, 2, 53, 2),
    Sketcher.Constraint("Coincident", 53, 1, 54, 1),
    Sketcher.Constraint("Coincident", 54, 2, 55, 1),
    Sketcher.Constraint("Coincident", 55, 2, 56, 2),
    Sketcher.Constraint("Coincident", 56, 1, 57, 1),
    Sketcher.Constraint("Coincident", 57, 2, 58, 1),
    Sketcher.Constraint("Coincident", 58, 2, 59, 2),
    Sketcher.Constraint("Coincident", 59, 1, 60, 1),
    Sketcher.Constraint("Coincident", 60, 2, 61, 1),
    Sketcher.Constraint("Coincident", 61, 2, 62, 2),
    Sketcher.Constraint("Coincident", 62, 1, 63, 1),
    Sketcher.Constraint("Coincident", 63, 2, 64, 1),
    Sketcher.Constraint("Coincident", 64, 2, 65, 2),
    Sketcher.Constraint("Coincident", 65, 1, 66, 1),
    Sketcher.Constraint("Coincident", 66, 2, 67, 1),
    Sketcher.Constraint("Coincident", 67, 2, 68, 2),
    Sketcher.Constraint("Coincident", 68, 1, 69, 1),
    Sketcher.Constraint("Coincident", 69, 2, 70, 1),
    Sketcher.Constraint("Coincident", 70, 2, 71, 2),
    Sketcher.Constraint("Coincident", 71, 1, 0, 1),
    Sketcher.Constraint("Horizontal", 7),
    Sketcher.Constraint("Vertical", 12),
    Sketcher.Constraint("Vertical", 25),
    Sketcher.Constraint("Horizontal", 30),
    Sketcher.Constraint("Horizontal", 43),
    Sketcher.Constraint("Vertical", 48),
    Sketcher.Constraint("Vertical", 61),
    Sketcher.Constraint("Horizontal", 66),
    Sketcher.Constraint("Coincident", 2, 3, -1, 1),
    Sketcher.Constraint("Coincident", 5, 3, -1, 1),
    Sketcher.Constraint("Coincident", 8, 3, -1, 1),
    Sketcher.Constraint("Coincident", 11, 3, -1, 1),
    Sketcher.Constraint("Coincident", 14, 3, -1, 1),
    Sketcher.Constraint("Coincident", 17, 3, -1, 1),
    Sketcher.Constraint("Coincident", 20, 3, -1, 1),
    Sketcher.Constraint("Coincident", 23, 3, -1, 1),
    Sketcher.Constraint("Coincident", 26, 3, -1, 1),
    Sketcher.Constraint("Coincident", 29, 3, -1, 1),
    Sketcher.Constraint("Coincident", 32, 3, -1, 1),
    Sketcher.Constraint("Coincident", 35, 3, -1, 1),
    Sketcher.Constraint("Coincident", 38, 3, -1, 1),
    Sketcher.Constraint("Coincident", 41, 3, -1, 1),
    Sketcher.Constraint("Coincident", 44, 3, -1, 1),
    Sketcher.Constraint("Coincident", 47, 3, -1, 1),
    Sketcher.Constraint("Coincident", 50, 3, -1, 1),
    Sketcher.Constraint("Coincident", 53, 3, -1, 1),
    Sketcher.Constraint("Coincident", 56, 3, -1, 1),
    Sketcher.Constraint("Coincident", 59, 3, -1, 1),
    Sketcher.Constraint("Coincident", 62, 3, -1, 1),
    Sketcher.Constraint("Coincident", 65, 3, -1, 1),
    Sketcher.Constraint("Coincident", 68, 3, -1, 1),
    Sketcher.Constraint("Coincident", 71, 3, -1, 1),
    Sketcher.Constraint("Equal", 2, 5),
    Sketcher.Constraint("Equal", 5, 8),
    Sketcher.Constraint("Equal", 8, 11),
    Sketcher.Constraint("Equal", 11, 14),
    Sketcher.Constraint("Equal", 14, 17),
    Sketcher.Constraint("Equal", 17, 20),
    Sketcher.Constraint("Equal", 20, 23),
    Sketcher.Constraint("Equal", 23, 26),
    Sketcher.Constraint("Equal", 26, 29),
    Sketcher.Constraint("Equal", 29, 32),
    Sketcher.Constraint("Equal", 32, 35),
    Sketcher.Constraint("Equal", 35, 38),
    Sketcher.Constraint("Equal", 38, 41),
    Sketcher.Constraint("Equal", 41, 44),
    Sketcher.Constraint("Equal", 44, 47),
    Sketcher.Constraint("Equal", 47, 50),
    Sketcher.Constraint("Equal", 50, 53),
    Sketcher.Constraint("Equal", 53, 56),
    Sketcher.Constraint("Equal", 56, 59),
    Sketcher.Constraint("Equal", 59, 62),
    Sketcher.Constraint("Equal", 62, 65),
    Sketcher.Constraint("Equal", 65, 68),
    Sketcher.Constraint("Equal", 68, 71),
    Sketcher.Constraint("Symmetric", 0, 2, 36, 2, -1, 1),
    Sketcher.Constraint("Symmetric", 3, 2, 39, 2, -1, 1),
    Sketcher.Constraint("Symmetric", 6, 2, 42, 2, -1, 1),
    Sketcher.Constraint("Symmetric", 9, 2, 45, 2, -1, 1),
    Sketcher.Constraint("Symmetric", 12, 2, 48, 2, -1, 1),
    Sketcher.Constraint("Symmetric", 15, 2, 51, 2, -1, 1),
    Sketcher.Constraint("Symmetric", 18, 2, 54, 2, -1, 1),
    Sketcher.Constraint("Symmetric", 21, 2, 57, 2, -1, 1),
    Sketcher.Constraint("Symmetric", 24, 2, 60, 2, -1, 1),
    Sketcher.Constraint("Symmetric", 27, 2, 63, 2, -1, 1),
    Sketcher.Constraint("Symmetric", 30, 2, 66, 2, -1, 1),
    Sketcher.Constraint("Symmetric", 33, 2, 69, 2, -1, 1),
    Sketcher.Constraint("Symmetric", 15, 2, 21, 2, -2),
    Sketcher.Constraint("Symmetric", 12, 2, 24, 2, -2),
    Sketcher.Constraint("Symmetric", 9, 2, 27, 2, -2),
    Sketcher.Constraint("Symmetric", 6, 2, 30, 2, -2),
    Sketcher.Constraint("Symmetric", 3, 2, 33, 2, -2),
    Sketcher.Constraint("PointOnObject", 0, 2, -1),
    Sketcher.Constraint("PointOnObject", 18, 2, -2),
    Sketcher.Constraint("Perpendicular", 1, 6),
    Sketcher.Constraint("Perpendicular", 4, 9),
    Sketcher.Constraint("Parallel", 0, 13),
    Sketcher.Constraint("Perpendicular", 10, 15),
    Sketcher.Constraint("Parallel", 3, 16),
    Sketcher.Constraint("Perpendicular", 13, 18),
    Sketcher.Constraint("Parallel", 6, 19),
    Sketcher.Constraint("Perpendicular", 16, 21),
    Sketcher.Constraint("Parallel", 9, 22),
    Sketcher.Constraint("Perpendicular", 19, 24),
    Sketcher.Constraint("Perpendicular", 22, 27),
    Sketcher.Constraint("Parallel", 15, 28),
    Sketcher.Constraint("Parallel", 18, 31),
    Sketcher.Constraint("Perpendicular", 28, 33),
    Sketcher.Constraint("Parallel", 21, 34),
    Sketcher.Constraint("Perpendicular", 31, 36),
    Sketcher.Constraint("Parallel", 24, 37),
    Sketcher.Constraint("Perpendicular", 34, 39),
    Sketcher.Constraint("Parallel", 27, 40),
    Sketcher.Constraint("Perpendicular", 37, 42),
    Sketcher.Constraint("Perpendicular", 40, 45),
    Sketcher.Constraint("Parallel", 33, 46),
    Sketcher.Constraint("Parallel", 36, 49),
    Sketcher.Constraint("Perpendicular", 46, 51),
    Sketcher.Constraint("Parallel", 39, 52),
    Sketcher.Constraint("Perpendicular", 49, 54),
    Sketcher.Constraint("Parallel", 42, 55),
    Sketcher.Constraint("Perpendicular", 52, 57),
    Sketcher.Constraint("Parallel", 45, 58),
    Sketcher.Constraint("Perpendicular", 55, 60),
    Sketcher.Constraint("Perpendicular", 58, 63),
    Sketcher.Constraint("Parallel", 51, 64),
    Sketcher.Constraint("Parallel", 54, 67),
    Sketcher.Constraint("Perpendicular", 64, 69),
    Sketcher.Constraint("Parallel", 57, 70),
    Sketcher.Constraint("Horizontal", 17, 1, 19, 2),
    Sketcher.Constraint("Horizontal", 16, 2, 20, 1),
    Sketcher.Constraint("Horizontal", 14, 1, 22, 2),
    Sketcher.Constraint("Equal", 66, 12),
    Sketcher.Constraint("Equal", 1, 3),
    Sketcher.Constraint("Equal", 3, 4),
    Sketcher.Constraint("Equal", 4, 6),
    Sketcher.Constraint("Equal", 6, 9),
    Sketcher.Constraint("Equal", 9, 10),
    Sketcher.Constraint("Equal", 10, 13),
    Sketcher.Constraint("Equal", 13, 15),
    Sketcher.Constraint("Equal", 15, 16),
    Sketcher.Constraint("Equal", 16, 18),
    Sketcher.Constraint("Radius", 2, 3.0),
    Sketcher.Constraint("Angle", 0, Q("150.0007 deg")),
    Sketcher.Constraint("Angle", 4, Q("14.999 deg")),
    Sketcher.Constraint("DistanceX", 0, 2, -1, 1, 3.4),
    Sketcher.Constraint("DistanceY", -1, 1, 6, 2, 1.7),
])
sketch2.setExpression("Constraints[194]", "Params.sketch2_radius")
pocket1 = body.newObject("PartDesign::Pocket", "Pocket")
pocket1.Profile = sketch2
pocket1.setExpression("Length", "Params.pocket1_length")
pocket1.Reversed = True

doc.recompute()
